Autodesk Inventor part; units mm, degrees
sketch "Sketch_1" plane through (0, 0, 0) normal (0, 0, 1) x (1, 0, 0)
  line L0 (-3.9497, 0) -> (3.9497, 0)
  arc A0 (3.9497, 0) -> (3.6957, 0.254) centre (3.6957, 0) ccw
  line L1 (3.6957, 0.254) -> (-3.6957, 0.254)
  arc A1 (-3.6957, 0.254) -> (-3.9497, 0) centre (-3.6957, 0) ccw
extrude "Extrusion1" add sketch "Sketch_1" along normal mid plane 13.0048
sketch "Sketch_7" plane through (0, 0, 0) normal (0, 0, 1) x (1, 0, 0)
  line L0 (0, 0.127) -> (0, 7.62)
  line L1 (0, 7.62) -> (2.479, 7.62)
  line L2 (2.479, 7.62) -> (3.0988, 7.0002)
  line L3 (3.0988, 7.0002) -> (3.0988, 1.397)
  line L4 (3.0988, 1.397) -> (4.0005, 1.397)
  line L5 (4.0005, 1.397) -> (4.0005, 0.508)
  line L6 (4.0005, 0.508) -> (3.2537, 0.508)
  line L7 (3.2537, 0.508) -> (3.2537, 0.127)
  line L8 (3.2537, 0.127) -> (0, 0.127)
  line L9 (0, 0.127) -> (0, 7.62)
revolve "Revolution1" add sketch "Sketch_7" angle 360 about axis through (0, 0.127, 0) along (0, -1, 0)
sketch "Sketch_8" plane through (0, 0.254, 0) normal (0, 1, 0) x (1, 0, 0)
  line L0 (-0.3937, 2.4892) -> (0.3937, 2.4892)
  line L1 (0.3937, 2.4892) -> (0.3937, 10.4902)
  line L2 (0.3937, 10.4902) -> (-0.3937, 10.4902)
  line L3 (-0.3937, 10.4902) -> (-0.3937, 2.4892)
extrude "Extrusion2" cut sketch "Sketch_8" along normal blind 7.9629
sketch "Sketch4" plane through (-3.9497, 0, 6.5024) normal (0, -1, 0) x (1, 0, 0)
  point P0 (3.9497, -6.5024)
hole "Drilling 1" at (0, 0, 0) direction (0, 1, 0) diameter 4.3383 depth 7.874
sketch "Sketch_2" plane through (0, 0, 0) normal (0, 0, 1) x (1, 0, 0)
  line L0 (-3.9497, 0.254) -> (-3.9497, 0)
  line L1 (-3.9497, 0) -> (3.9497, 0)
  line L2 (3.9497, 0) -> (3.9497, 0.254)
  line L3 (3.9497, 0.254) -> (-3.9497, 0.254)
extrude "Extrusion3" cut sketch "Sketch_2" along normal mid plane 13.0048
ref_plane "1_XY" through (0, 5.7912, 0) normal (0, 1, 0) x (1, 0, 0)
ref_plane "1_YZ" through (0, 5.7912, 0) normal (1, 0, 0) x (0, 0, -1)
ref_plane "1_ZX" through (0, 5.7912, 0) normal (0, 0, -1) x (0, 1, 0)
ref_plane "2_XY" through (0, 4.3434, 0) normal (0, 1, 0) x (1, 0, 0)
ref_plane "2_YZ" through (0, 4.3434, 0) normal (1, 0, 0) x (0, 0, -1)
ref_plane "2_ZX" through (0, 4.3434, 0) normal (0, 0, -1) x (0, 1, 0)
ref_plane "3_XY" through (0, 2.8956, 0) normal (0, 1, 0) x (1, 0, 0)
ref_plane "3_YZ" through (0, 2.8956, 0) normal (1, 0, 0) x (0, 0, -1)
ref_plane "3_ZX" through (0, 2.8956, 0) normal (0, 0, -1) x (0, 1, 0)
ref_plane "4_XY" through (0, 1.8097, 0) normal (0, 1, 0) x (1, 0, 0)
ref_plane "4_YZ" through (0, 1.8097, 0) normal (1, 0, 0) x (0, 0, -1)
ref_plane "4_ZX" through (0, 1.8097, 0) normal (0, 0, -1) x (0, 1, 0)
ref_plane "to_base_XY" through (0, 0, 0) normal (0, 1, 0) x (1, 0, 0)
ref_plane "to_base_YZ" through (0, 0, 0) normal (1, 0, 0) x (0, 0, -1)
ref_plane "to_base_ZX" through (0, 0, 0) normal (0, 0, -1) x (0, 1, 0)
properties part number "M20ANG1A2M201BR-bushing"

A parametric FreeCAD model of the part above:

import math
import FreeCAD as App
import Part
import Sketcher
from FreeCAD import Vector
Q = App.Units.Quantity


def add_polygon(sketch, points):
    """Adds a closed chain of lines whose ends are joined by coincident constraints."""
    first, n = sketch.GeometryCount, len(points)
    for a, b in zip(points, points[1:] + points[:1]):
        sketch.addGeometry(Part.LineSegment(App.Vector(*a, 0), App.Vector(*b, 0)), False)
    for i in range(n):
        sketch.addConstraint(Sketcher.Constraint("Coincident", first + i, 2, first + (i + 1) % n, 1))

doc = App.newDocument("Part")
body = doc.addObject("PartDesign::Body", "Body")

# Sketch on XY plane
sketch1 = body.newObject("Sketcher::SketchObject", "Sketch")
sketch1.AttachmentSupport = (doc.getObject("XY_Plane"), [""])
sketch1.MapMode = "FlatFace"
sketch1.addGeometry([
    Part.ArcOfCircle(Part.Circle(Vector(-3.7, 0, 0), Vector(0, 0, 1), 0.25), math.radians(90), math.radians(180)),
    Part.LineSegment(Vector(-3.95, 0, 0), Vector(3.95, 0, 0)),
    Part.ArcOfCircle(Part.Circle(Vector(3.7, 0, 0), Vector(0, 0, 1), 0.25), math.radians(0), math.radians(90)),
    Part.LineSegment(Vector(3.7, 0.25, 0), Vector(-3.7, 0.25, 0)),
], False)
sketch1.addConstraint([
    Sketcher.Constraint("Coincident", 0, 2, 1, 1),
    Sketcher.Constraint("Coincident", 1, 2, 2, 1),
    Sketcher.Constraint("Tangent", 2, 2, 3, 1),
    Sketcher.Constraint("Tangent", 3, 2, 0, 1),
    Sketcher.Constraint("Horizontal", 1),
    Sketcher.Constraint("Horizontal", 3),
    Sketcher.Constraint("Equal", 0, 2),
    Sketcher.Constraint("Symmetric", 0, 3, 2, 3, -1, 1),
    Sketcher.Constraint("PointOnObject", 0, 2, -1),
    Sketcher.Constraint("Radius", 0, Q("0.01 in")),
    Sketcher.Constraint("DistanceX", 1, 1, 1, 2, Q("0.311 in")),
])
pad1 = body.newObject("PartDesign::Pad", "Pad")
pad1.Profile = sketch1
pad1.Length = Q("0.512 in")
pad1.Midplane = True

# Sketch on XY plane
sketch2 = body.newObject("Sketcher::SketchObject", "Sketch001")
sketch2.AttachmentSupport = (doc.getObject("XY_Plane"), [""])
sketch2.MapMode = "FlatFace"
add_polygon(sketch2, [(0, 7.62), (0, 0.13), (3.25, 0.13), (3.25, 0.51), (4, 0.51), (4, 1.4), (3.1, 1.4), (3.1, 7), (2.48, 7.62)])  # lines 0-8
sketch2.addConstraint([
    Sketcher.Constraint("Vertical", 0),
    Sketcher.Constraint("Horizontal", 1),
    Sketcher.Constraint("Vertical", 2),
    Sketcher.Constraint("Horizontal", 3),
    Sketcher.Constraint("Vertical", 4),
    Sketcher.Constraint("Horizontal", 5),
    Sketcher.Constraint("Vertical", 6),
    Sketcher.Constraint("Horizontal", 8),
    Sketcher.Constraint("PointOnObject", 0, 2, -2),
    Sketcher.Constraint("Angle", 7, Q("135 deg")),
    Sketcher.Constraint("DistanceY", -1, 1, 7, 2, Q("0.3 in")),
    Sketcher.Constraint("DistanceY", 0, 2, 0, 1, Q("0.295 in")),
    Sketcher.Constraint("DistanceY", 2, 1, 2, 2, Q("0.015 in")),
    Sketcher.Constraint("DistanceY", 4, 1, 4, 2, Q("0.035 in")),
    Sketcher.Constraint("DistanceX", 1, 1, 1, 2, Q("0.1281 in")),
    Sketcher.Constraint("DistanceX", 3, 1, 3, 2, Q("0.0294 in")),
    Sketcher.Constraint("DistanceX", 5, 2, 5, 1, Q("0.0355 in")),
    Sketcher.Constraint("DistanceX", 8, 2, 8, 1, Q("0.0976 in")),
])
revolution = body.newObject("PartDesign::Revolution", "Revolution")
revolution.Profile = sketch2
revolution.ReferenceAxis = (sketch2, ["V_Axis"])
revolution.Angle = 360

# Sketch on XZ plane
sketch3 = body.newObject("Sketcher::SketchObject", "Sketch002")
sketch3.AttachmentSupport = (doc.getObject("XZ_Plane"), [""])
sketch3.MapMode = "FlatFace"
sketch3.AttachmentOffset = App.Placement(Vector(0, 0, -0.01 * 25.4), App.Rotation())
add_polygon(sketch3, [(-0.4, -10.5), (-0.4, -2.5), (0.4, -2.5), (0.4, -10.5)])  # lines 0-3
sketch3.addConstraint([
    Sketcher.Constraint("Vertical", 0),
    Sketcher.Constraint("Horizontal", 1),
    Sketcher.Constraint("Vertical", 2),
    Sketcher.Constraint("Horizontal", 3),
    Sketcher.Constraint("DistanceX", 1, 1, 1, 2, Q("0.031 in")),
    Sketcher.Constraint("DistanceY", 0, 1, 0, 2, Q("0.315 in")),
    Sketcher.Constraint("DistanceY", 0, 2, -1, 1, Q("0.098 in")),
    Sketcher.Constraint("DistanceX", 0, 2, -1, 1, Q("0.0155 in")),
])
pocket1 = body.newObject("PartDesign::Pocket", "Pocket")
pocket1.Profile = sketch3
pocket1.Length = Q("0.3135 in")

# Sketch on XZ plane
sketch4 = body.newObject("Sketcher::SketchObject", "Sketch003")
sketch4.AttachmentSupport = (doc.getObject("XZ_Plane"), [""])
sketch4.MapMode = "FlatFace"
sketch4.addGeometry(Part.Circle(Vector(0, 0, 0), Vector(0, 0, 1), 2.2), False)
sketch4.addConstraint([
    Sketcher.Constraint("Coincident", 0, 3, -1, 1),
    Sketcher.Constraint("Diameter", 0, Q("0.1708 in")),
])
doc.recompute()
hole = body.newObject("PartDesign::Hole", "Hole")
hole.Profile = sketch4
hole.ThreadType = "None"
hole.Diameter = Q("0.1707992 in")
hole.DepthType = "Dimension"
hole.Depth = Q("0.31 in")
hole.DrillPoint = "Flat"

# Sketch on XY plane
sketch5 = body.newObject("Sketcher::SketchObject", "Sketch004")
sketch5.AttachmentSupport = (doc.getObject("XY_Plane"), [""])
sketch5.MapMode = "FlatFace"
add_polygon(sketch5, [(3.95, 0.25), (-3.95, 0.25), (-3.95, 0), (3.95, 0)])  # lines 0-3
sketch5.addConstraint([
    Sketcher.Constraint("Horizontal", 0),
    Sketcher.Constraint("Vertical", 1),
    Sketcher.Constraint("Horizontal", 2),
    Sketcher.Constraint("Vertical", 3),
    Sketcher.Constraint("Symmetric", 1, 2, 2, 2, -1, 1),
    Sketcher.Constraint("DistanceY", 1, 2, 1, 1, Q("0.01 in")),
    Sketcher.Constraint("DistanceX", 0, 2, 0, 1, Q("0.311 in")),
])
pocket2 = body.newObject("PartDesign::Pocket", "Pocket001")
pocket2.Profile = sketch5
pocket2.Length = Q("0.512 in")
pocket2.Midplane = True

doc.recompute()
